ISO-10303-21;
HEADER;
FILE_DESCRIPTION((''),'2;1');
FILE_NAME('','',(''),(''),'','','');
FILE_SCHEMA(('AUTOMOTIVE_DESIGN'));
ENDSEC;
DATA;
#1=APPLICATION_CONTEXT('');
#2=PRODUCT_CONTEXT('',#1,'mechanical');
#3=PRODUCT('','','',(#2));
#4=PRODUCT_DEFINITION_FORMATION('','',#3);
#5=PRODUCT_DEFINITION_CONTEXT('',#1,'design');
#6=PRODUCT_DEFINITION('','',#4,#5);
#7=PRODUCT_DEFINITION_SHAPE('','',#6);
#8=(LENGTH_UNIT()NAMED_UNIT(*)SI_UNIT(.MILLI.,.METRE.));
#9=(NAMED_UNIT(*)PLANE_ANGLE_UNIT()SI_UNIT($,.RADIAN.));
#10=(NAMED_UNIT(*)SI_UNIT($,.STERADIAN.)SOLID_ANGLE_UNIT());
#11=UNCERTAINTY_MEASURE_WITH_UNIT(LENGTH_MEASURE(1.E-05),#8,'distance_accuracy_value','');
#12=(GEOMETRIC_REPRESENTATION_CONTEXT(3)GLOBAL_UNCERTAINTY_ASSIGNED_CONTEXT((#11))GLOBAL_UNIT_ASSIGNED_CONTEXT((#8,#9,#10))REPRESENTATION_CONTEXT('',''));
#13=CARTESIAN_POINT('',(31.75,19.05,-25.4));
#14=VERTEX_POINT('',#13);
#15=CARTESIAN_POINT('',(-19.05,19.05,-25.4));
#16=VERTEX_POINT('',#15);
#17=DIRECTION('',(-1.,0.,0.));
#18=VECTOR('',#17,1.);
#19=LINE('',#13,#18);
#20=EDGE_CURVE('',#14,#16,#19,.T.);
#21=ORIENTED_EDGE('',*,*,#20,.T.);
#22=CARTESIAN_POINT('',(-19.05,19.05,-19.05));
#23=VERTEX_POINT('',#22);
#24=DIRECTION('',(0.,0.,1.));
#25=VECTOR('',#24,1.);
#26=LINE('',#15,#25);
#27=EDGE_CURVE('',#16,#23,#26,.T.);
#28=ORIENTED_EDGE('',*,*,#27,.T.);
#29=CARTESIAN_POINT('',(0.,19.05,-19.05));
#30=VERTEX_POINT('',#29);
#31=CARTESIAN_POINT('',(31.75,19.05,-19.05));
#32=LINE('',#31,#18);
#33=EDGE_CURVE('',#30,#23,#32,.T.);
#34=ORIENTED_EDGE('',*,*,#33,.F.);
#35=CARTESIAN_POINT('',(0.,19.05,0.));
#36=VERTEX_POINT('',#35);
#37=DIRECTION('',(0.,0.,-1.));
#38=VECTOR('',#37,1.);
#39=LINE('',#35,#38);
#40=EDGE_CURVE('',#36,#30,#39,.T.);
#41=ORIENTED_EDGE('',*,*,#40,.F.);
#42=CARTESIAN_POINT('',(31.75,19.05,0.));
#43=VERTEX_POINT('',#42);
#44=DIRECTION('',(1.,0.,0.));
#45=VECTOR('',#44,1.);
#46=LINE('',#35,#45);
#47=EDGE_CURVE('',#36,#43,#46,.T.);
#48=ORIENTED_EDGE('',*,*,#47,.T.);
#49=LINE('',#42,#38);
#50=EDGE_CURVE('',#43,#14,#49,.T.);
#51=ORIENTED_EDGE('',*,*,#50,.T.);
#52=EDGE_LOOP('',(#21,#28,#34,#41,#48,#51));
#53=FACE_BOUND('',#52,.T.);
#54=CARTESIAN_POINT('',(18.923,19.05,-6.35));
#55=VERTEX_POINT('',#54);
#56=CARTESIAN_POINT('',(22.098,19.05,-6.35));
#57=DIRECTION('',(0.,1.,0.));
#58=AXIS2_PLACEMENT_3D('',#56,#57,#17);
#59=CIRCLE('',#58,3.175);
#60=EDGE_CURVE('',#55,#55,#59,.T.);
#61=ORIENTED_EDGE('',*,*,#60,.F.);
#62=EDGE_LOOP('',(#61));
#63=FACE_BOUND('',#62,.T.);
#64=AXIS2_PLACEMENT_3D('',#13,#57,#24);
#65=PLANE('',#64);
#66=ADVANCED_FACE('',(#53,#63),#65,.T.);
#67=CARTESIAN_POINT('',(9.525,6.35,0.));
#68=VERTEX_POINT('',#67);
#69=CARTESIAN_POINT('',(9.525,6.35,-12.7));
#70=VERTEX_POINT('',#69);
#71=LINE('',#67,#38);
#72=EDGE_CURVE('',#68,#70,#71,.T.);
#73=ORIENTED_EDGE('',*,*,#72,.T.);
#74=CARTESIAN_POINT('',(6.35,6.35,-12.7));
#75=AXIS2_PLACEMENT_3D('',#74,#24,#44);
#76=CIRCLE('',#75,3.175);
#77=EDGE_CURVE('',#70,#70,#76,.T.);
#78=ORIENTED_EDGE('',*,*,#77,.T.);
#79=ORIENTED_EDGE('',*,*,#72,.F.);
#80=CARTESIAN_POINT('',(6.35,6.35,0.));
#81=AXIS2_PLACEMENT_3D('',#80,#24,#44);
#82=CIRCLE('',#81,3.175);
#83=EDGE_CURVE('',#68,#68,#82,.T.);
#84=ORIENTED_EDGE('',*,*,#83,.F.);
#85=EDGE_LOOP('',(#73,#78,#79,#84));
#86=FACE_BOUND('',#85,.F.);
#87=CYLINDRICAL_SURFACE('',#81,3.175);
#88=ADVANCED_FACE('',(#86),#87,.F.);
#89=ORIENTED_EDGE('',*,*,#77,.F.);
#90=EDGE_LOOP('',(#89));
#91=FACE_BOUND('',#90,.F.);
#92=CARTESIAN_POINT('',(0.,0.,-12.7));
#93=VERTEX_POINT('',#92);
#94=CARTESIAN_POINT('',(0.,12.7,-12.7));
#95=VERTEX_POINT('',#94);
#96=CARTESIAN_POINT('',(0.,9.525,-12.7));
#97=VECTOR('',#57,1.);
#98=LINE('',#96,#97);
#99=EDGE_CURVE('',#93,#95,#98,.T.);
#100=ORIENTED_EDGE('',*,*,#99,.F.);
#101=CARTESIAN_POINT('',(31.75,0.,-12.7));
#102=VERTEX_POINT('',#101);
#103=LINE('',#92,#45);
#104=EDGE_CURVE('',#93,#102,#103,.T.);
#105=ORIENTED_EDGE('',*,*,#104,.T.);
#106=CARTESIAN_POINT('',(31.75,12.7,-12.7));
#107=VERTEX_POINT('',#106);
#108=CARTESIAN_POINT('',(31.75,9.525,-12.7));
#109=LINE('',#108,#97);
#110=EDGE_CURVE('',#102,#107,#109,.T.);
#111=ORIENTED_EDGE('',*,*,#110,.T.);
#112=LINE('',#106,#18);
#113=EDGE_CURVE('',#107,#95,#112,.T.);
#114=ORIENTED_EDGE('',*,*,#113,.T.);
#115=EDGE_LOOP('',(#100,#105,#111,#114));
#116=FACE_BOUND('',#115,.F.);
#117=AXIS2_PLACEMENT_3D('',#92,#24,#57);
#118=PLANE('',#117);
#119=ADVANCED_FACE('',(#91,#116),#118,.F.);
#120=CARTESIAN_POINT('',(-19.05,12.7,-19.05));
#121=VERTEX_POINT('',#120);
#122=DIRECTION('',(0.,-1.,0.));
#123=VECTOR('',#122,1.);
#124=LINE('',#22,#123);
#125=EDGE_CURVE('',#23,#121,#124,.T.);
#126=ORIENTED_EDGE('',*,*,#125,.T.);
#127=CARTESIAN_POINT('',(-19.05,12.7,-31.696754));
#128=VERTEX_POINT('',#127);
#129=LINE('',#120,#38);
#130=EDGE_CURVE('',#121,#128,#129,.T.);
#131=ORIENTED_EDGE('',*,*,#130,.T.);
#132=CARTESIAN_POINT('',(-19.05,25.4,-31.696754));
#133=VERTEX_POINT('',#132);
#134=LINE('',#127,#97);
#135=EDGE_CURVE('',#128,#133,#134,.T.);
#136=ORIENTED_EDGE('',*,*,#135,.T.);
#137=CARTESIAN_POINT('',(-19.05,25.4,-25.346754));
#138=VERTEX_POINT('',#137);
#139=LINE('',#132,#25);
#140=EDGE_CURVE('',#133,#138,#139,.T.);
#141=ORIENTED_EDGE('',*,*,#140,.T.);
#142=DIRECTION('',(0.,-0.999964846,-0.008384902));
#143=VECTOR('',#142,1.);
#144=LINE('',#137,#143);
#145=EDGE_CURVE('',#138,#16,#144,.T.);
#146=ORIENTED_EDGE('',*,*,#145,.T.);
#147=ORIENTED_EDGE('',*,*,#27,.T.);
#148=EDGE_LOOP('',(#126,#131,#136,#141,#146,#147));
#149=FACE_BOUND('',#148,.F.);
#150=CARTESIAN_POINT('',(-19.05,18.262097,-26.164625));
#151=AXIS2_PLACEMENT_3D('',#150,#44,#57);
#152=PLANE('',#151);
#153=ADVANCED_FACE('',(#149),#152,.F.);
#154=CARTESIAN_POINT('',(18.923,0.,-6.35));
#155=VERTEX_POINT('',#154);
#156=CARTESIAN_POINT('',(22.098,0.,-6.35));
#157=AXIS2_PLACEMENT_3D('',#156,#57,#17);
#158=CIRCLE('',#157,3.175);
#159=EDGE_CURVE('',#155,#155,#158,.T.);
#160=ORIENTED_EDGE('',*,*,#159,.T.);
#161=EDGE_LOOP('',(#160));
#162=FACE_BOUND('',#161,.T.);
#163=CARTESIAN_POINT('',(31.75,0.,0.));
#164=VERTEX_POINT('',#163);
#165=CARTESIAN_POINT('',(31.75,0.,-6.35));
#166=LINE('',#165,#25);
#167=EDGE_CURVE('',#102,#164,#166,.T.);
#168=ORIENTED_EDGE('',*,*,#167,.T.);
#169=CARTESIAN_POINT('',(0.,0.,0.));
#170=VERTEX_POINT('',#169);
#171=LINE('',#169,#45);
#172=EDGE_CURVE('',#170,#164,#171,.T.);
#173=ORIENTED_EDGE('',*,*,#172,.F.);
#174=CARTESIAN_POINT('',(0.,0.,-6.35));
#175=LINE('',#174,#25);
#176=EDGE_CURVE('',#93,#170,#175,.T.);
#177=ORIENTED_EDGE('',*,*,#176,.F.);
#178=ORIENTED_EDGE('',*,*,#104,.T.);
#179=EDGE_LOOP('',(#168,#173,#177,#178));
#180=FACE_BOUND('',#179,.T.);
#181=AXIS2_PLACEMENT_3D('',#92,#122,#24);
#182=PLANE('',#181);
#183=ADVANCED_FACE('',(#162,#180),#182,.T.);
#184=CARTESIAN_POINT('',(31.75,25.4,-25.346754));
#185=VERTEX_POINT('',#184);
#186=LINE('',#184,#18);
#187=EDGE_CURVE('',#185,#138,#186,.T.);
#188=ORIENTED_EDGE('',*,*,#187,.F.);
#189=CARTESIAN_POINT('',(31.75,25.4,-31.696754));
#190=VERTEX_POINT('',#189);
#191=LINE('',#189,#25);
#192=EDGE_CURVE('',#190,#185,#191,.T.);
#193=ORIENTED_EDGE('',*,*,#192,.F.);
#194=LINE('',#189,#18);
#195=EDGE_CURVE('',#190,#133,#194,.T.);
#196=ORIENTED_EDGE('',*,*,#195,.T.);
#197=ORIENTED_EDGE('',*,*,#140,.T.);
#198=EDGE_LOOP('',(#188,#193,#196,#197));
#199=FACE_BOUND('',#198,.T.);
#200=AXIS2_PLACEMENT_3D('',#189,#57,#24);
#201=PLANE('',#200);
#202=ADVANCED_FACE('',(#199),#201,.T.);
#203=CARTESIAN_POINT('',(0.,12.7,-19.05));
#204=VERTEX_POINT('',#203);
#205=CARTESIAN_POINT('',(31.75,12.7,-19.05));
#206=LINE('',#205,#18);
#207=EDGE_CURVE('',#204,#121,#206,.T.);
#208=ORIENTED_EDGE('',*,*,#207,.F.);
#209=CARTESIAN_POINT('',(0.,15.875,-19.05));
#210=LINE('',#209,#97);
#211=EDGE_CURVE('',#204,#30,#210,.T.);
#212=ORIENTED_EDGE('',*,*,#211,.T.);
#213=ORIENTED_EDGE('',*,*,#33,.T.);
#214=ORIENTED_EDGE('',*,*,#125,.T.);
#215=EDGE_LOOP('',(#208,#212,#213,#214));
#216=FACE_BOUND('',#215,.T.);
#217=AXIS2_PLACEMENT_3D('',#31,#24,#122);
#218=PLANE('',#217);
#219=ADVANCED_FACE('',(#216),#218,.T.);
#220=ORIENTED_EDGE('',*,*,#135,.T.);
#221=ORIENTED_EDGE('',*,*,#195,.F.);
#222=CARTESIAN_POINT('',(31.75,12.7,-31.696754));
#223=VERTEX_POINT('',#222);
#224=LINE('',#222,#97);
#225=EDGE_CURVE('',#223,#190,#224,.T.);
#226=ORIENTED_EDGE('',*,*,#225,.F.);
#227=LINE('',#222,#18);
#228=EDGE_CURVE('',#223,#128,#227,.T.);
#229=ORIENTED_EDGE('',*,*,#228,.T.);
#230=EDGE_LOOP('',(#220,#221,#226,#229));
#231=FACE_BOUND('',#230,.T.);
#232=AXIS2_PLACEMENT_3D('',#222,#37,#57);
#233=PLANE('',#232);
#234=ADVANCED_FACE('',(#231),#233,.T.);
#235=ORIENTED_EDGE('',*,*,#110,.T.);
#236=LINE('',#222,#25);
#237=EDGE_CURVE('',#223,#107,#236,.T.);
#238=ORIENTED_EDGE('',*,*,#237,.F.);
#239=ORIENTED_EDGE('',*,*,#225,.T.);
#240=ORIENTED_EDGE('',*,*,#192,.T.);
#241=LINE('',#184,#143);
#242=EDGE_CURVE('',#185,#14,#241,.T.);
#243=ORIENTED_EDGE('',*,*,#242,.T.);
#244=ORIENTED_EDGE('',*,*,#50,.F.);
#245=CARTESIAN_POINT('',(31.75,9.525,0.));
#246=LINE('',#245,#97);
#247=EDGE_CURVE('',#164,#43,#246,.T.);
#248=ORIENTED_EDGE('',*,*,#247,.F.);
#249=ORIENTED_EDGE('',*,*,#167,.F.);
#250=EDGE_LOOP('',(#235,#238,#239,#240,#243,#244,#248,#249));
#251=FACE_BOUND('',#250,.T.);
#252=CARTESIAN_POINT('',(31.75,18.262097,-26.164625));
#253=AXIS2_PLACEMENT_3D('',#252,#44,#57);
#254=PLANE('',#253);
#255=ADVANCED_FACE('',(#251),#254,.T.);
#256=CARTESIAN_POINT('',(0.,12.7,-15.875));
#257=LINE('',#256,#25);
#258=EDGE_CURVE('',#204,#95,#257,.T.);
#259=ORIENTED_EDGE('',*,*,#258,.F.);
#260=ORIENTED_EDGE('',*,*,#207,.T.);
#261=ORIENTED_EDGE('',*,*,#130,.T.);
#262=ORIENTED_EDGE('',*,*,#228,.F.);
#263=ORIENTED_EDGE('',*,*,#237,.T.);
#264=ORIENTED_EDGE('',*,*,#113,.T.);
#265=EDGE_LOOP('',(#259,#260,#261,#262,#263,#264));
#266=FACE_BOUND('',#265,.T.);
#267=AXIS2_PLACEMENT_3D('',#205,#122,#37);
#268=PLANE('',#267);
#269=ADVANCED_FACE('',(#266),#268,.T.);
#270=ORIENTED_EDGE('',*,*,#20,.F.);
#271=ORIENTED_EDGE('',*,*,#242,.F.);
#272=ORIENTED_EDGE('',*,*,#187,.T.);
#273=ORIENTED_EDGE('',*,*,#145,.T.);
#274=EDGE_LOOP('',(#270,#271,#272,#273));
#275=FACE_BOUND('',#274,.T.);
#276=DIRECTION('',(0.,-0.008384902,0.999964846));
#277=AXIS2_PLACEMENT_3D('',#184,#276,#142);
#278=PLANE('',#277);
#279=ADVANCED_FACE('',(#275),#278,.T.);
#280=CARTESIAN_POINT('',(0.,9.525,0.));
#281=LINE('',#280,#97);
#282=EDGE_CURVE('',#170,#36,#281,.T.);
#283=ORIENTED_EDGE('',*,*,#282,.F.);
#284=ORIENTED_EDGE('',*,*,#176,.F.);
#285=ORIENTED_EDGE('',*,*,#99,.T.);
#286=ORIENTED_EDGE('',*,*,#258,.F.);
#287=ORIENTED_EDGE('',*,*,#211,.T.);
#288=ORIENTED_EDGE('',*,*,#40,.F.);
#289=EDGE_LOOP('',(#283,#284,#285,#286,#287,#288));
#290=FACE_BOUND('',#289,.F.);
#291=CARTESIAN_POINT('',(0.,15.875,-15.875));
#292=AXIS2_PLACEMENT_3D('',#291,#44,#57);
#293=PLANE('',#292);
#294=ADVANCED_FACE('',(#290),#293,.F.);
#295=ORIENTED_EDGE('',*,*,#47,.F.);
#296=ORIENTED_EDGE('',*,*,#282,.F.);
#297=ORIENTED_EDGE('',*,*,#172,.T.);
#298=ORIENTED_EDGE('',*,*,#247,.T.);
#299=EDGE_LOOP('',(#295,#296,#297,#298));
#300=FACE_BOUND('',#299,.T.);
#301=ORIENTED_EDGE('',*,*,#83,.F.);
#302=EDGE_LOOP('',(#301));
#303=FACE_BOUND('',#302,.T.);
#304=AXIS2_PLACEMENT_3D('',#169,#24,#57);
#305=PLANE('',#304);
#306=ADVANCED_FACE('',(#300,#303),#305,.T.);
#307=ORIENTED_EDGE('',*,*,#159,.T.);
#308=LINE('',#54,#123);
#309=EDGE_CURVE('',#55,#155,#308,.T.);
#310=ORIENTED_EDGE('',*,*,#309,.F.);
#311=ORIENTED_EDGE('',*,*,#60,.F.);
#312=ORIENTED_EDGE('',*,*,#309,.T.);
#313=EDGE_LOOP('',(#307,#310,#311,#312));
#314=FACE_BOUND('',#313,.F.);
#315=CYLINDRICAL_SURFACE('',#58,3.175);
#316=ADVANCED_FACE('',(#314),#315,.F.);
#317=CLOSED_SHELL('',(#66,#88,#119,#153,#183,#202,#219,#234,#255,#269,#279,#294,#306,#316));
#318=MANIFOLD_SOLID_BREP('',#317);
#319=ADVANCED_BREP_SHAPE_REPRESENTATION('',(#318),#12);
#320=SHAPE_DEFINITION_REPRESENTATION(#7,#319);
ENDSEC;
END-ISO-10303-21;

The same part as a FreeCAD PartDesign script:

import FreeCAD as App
import Part
import Sketcher
from FreeCAD import Vector
Q = App.Units.Quantity


def add_polygon(sketch, points):
    """Adds a closed chain of lines whose ends are joined by coincident constraints."""
    first, n = sketch.GeometryCount, len(points)
    for a, b in zip(points, points[1:] + points[:1]):
        sketch.addGeometry(Part.LineSegment(App.Vector(*a, 0), App.Vector(*b, 0)), False)
    for i in range(n):
        sketch.addConstraint(Sketcher.Constraint("Coincident", first + i, 2, first + (i + 1) % n, 1))

doc = App.newDocument("Part")
body = doc.addObject("PartDesign::Body", "Body")

# Sketch on YZ plane
sketch1 = body.newObject("Sketcher::SketchObject", "Sketch")
sketch1.AttachmentSupport = (doc.getObject("YZ_Plane"), [""])
sketch1.MapMode = "FlatFace"
add_polygon(sketch1, [(0, 0), (0, -13), (19, -13), (19, 0)])  # lines 0-3
sketch1.addConstraint([
    Sketcher.Constraint("Vertical", 0),
    Sketcher.Constraint("Horizontal", 1),
    Sketcher.Constraint("Vertical", 2),
    Sketcher.Constraint("Horizontal", 3),
    Sketcher.Constraint("Coincident", 3, 2, -1, 1),
    Sketcher.Constraint("DistanceY", 0, 2, 0, 1, Q("0.5 in")),
    Sketcher.Constraint("DistanceX", 1, 1, 1, 2, Q("0.75 in")),
])
pad1 = body.newObject("PartDesign::Pad", "Pad")
pad1.Profile = sketch1
pad1.Length = Q("1.25 in")

# Sketch on YZ plane
sketch2 = body.newObject("Sketcher::SketchObject", "Sketch001")
sketch2.AttachmentSupport = (doc.getObject("YZ_Plane"), [""])
sketch2.MapMode = "FlatFace"
sketch2.AttachmentOffset = App.Placement(Vector(0, 0, 1.25 * 25.4), App.Rotation())
add_polygon(sketch2, [(13, -13), (13, -19), (19, -19), (19, -13)])  # lines 0-3
sketch2.addConstraint([
    Sketcher.Constraint("Vertical", 0),
    Sketcher.Constraint("Horizontal", 1),
    Sketcher.Constraint("Vertical", 2),
    Sketcher.Constraint("Horizontal", 3),
    Sketcher.Constraint("Equal", 3, 0),
    Sketcher.Constraint("DistanceX", 1, 1, 1, 2, Q("0.25 in")),
    Sketcher.Constraint("DistanceX", -1, 1, 0, 2, Q("0.5 in")),
    Sketcher.Constraint("DistanceY", 2, 2, -1, 1, Q("0.5 in")),
])
pad2 = body.newObject("PartDesign::Pad", "Pad001")
pad2.Profile = sketch2
pad2.Length = Q("1.25 in")
pad2.Reversed = True

# Sketch on YZ plane
sketch3 = body.newObject("Sketcher::SketchObject", "Sketch002")
sketch3.AttachmentSupport = (doc.getObject("YZ_Plane"), [""])
sketch3.MapMode = "FlatFace"
sketch3.AttachmentOffset = App.Placement(Vector(0, 0, 1.25 * 25.4), App.Rotation())
add_polygon(sketch3, [(19, -19), (13, -19), (13, -32), (25, -32), (25, -25), (19, -25)])  # lines 0-5
sketch3.addConstraint([
    Sketcher.Constraint("Horizontal", 0),
    Sketcher.Constraint("Vertical", 1),
    Sketcher.Constraint("Horizontal", 2),
    Sketcher.Constraint("Vertical", 3),
    Sketcher.Constraint("Vertical", 5),
    Sketcher.Constraint("Equal", 0, 3),
    Sketcher.Constraint("Equal", 3, 5),
    Sketcher.Constraint("DistanceX", 2, 1, 2, 2, Q("0.5 in")),
    Sketcher.Constraint("DistanceX", -1, 1, 2, 2, Q("1 in")),
    Sketcher.Constraint("DistanceY", 4, 2, -1, 1, Q("1 in")),
    Sketcher.Constraint("DistanceX", 0, 2, 0, 1, Q("0.25 in")),
    Sketcher.Constraint("DistanceY", 1, 2, 1, 1, 12.646754),
])
pad3 = body.newObject("PartDesign::Pad", "Pad002")
pad3.Profile = sketch3
pad3.Length = Q("2 in")
pad3.Reversed = True

# Sketch on XY plane
sketch4 = body.newObject("Sketcher::SketchObject", "Sketch003")
sketch4.AttachmentSupport = (doc.getObject("XY_Plane"), [""])
sketch4.MapMode = "FlatFace"
sketch4.addGeometry(Part.Circle(Vector(6.3, 6.3, 0), Vector(0, 0, 1), 3.2), False)
sketch4.addConstraint([
    Sketcher.Constraint("Diameter", 0, Q("0.25 in")),
    Sketcher.Constraint("DistanceX", -1, 1, 0, 3, Q("0.25 in")),
    Sketcher.Constraint("DistanceY", -1, 1, 0, 3, Q("0.25 in")),
])
pocket1 = body.newObject("PartDesign::Pocket", "Pocket")
pocket1.Profile = sketch4
pocket1.Type = "ThroughAll"

# Sketch on XZ plane
sketch5 = body.newObject("Sketcher::SketchObject", "Sketch004")
sketch5.AttachmentSupport = (doc.getObject("XZ_Plane"), [""])
sketch5.MapMode = "FlatFace"
sketch5.AttachmentOffset = App.Placement(Vector(0, 0, -0.75 * 25.4), App.Rotation())
sketch5.addGeometry(Part.Circle(Vector(22.1, -6.3, 0), Vector(0, 0, 1), 3.2), False)
sketch5.addConstraint([
    Sketcher.Constraint("Diameter", 0, Q("0.25 in")),
    Sketcher.Constraint("DistanceX", -1, 1, 0, 3, Q("0.87 in")),
    Sketcher.Constraint("DistanceY", 0, 3, -1, 1, Q("0.25 in")),
])
pocket2 = body.newObject("PartDesign::Pocket", "Pocket001")
pocket2.Profile = sketch5
pocket2.Length = Q("1 in")
pocket2.Reversed = True

doc.recompute()
